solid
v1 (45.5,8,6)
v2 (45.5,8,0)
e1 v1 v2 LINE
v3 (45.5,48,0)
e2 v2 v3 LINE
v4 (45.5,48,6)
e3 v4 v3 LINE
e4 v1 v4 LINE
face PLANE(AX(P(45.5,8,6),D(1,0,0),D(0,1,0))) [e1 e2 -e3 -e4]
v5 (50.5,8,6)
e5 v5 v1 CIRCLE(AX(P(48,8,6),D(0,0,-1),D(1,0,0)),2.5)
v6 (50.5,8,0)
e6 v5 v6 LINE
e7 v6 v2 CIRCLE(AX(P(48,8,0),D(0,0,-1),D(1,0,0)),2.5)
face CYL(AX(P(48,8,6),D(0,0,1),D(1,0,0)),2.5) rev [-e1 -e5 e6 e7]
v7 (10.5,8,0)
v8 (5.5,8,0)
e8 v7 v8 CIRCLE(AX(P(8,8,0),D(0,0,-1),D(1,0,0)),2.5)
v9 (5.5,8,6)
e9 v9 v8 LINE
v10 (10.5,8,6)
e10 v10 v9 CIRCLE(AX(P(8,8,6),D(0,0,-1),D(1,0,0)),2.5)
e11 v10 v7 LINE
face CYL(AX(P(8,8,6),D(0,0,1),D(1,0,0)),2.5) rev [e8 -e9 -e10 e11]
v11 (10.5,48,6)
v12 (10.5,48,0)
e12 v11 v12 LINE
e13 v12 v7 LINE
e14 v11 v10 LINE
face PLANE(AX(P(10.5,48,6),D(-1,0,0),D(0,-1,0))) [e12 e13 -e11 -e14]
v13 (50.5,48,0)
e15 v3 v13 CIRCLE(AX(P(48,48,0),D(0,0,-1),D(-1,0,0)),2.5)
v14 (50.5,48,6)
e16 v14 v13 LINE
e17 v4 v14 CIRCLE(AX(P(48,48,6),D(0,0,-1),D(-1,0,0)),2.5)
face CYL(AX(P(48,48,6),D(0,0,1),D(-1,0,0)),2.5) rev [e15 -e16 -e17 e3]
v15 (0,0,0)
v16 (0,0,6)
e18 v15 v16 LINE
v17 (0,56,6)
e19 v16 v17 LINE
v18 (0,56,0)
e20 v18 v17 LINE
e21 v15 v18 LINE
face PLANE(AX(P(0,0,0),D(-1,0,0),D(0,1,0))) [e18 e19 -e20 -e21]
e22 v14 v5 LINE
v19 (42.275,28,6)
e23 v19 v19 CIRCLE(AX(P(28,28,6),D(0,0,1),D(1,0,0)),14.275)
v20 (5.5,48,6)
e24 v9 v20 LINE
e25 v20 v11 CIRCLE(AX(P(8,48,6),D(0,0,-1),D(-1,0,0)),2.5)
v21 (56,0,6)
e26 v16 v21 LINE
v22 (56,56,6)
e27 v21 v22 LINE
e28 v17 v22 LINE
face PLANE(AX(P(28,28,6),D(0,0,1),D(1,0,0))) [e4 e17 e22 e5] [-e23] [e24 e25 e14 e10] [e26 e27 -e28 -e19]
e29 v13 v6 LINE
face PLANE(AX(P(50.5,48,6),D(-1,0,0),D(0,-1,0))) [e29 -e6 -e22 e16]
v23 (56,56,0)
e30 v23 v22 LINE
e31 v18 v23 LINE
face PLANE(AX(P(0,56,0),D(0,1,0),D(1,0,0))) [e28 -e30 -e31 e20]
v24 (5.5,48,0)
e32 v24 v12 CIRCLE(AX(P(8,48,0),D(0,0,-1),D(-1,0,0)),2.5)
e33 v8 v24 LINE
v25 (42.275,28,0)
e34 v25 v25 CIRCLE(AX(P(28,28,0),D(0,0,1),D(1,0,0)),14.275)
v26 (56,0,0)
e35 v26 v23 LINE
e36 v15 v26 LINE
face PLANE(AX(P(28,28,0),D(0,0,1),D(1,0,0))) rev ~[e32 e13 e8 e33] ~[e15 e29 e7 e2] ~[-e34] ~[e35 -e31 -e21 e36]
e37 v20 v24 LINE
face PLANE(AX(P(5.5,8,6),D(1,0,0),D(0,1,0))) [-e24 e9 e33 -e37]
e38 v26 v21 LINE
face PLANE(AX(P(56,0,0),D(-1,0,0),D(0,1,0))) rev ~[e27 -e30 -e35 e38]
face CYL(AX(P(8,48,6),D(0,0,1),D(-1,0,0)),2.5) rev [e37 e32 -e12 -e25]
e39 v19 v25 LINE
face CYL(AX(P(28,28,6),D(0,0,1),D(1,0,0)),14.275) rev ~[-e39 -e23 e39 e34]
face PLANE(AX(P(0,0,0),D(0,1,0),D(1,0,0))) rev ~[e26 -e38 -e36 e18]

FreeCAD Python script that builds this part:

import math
import FreeCAD as App
import Part
import Sketcher

doc = App.newDocument("Part")
body = doc.addObject("PartDesign::Body", "Body")

sketch1 = body.newObject("Sketcher::SketchObject", "Sketch")
sketch1.AttachmentSupport = (doc.getObject("XY_Plane"), [""])
sketch1.MapMode = "FlatFace"
sketch1.addGeometry(Part.LineSegment(App.Vector(0, 56, 0), App.Vector(0, 0, 0)), False)
sketch1.addGeometry(Part.LineSegment(App.Vector(0, 0, 0), App.Vector(56, 0, 0)), False)
sketch1.addGeometry(Part.LineSegment(App.Vector(56, 0, 0), App.Vector(56, 56, 0)), False)
sketch1.addGeometry(Part.LineSegment(App.Vector(56, 56, 0), App.Vector(0, 56, 0)), False)
sketch1.addConstraint(Sketcher.Constraint("Coincident", 0, 2, 1, 1))
sketch1.addConstraint(Sketcher.Constraint("Coincident", 1, 2, 2, 1))
sketch1.addConstraint(Sketcher.Constraint("Coincident", 2, 2, 3, 1))
sketch1.addConstraint(Sketcher.Constraint("Coincident", 3, 2, 0, 1))
sketch1.addConstraint(Sketcher.Constraint("Vertical", 0))
sketch1.addConstraint(Sketcher.Constraint("Horizontal", 1))
sketch1.addConstraint(Sketcher.Constraint("Vertical", 2))
sketch1.addConstraint(Sketcher.Constraint("Horizontal", 3))
sketch1.addConstraint(Sketcher.Constraint("Coincident", 0, 2, -1, 1))
sketch1.addConstraint(Sketcher.Constraint("Equal", 3, 0))
sketch1.addConstraint(Sketcher.Constraint("DistanceX", 1, 1, 1, 2, 56.0))
pad1 = body.newObject("PartDesign::Pad", "Pad")
pad1.Profile = sketch1
pad1.Length = 6

sketch2 = body.newObject("Sketcher::SketchObject", "Sketch001")
sketch2.AttachmentSupport = (doc.getObject("XY_Plane"), [""])
sketch2.MapMode = "FlatFace"
sketch2.AttachmentOffset = App.Placement(App.Vector(0, 0, 6), App.Rotation())
sketch2.addGeometry(Part.Circle(App.Vector(28, 28, 0), App.Vector(0, 0, 1), 14.3), False)
sketch2.addGeometry(Part.LineSegment(App.Vector(10.5, 8, 0), App.Vector(10.5, 48, 0)), False)
sketch2.addGeometry(Part.ArcOfCircle(Part.Circle(App.Vector(8, 48, 0), App.Vector(0, 0, 1), 2.5), math.radians(0), math.radians(180)), False)
sketch2.addGeometry(Part.LineSegment(App.Vector(5.5, 48, 0), App.Vector(5.5, 8, 0)), False)
sketch2.addGeometry(Part.ArcOfCircle(Part.Circle(App.Vector(8, 8, 0), App.Vector(0, 0, 1), 2.5), math.radians(180), math.radians(360)), False)
sketch2.addGeometry(Part.LineSegment(App.Vector(50.5, 8, 0), App.Vector(50.5, 48, 0)), False)
sketch2.addGeometry(Part.ArcOfCircle(Part.Circle(App.Vector(48, 48, 0), App.Vector(0, 0, 1), 2.5), math.radians(0), math.radians(180)), False)
sketch2.addGeometry(Part.LineSegment(App.Vector(45.5, 48, 0), App.Vector(45.5, 8, 0)), False)
sketch2.addGeometry(Part.ArcOfCircle(Part.Circle(App.Vector(48, 8, 0), App.Vector(0, 0, 1), 2.5), math.radians(180), math.radians(360)), False)
sketch2.addConstraint(Sketcher.Constraint("Tangent", 1, 2, 2, 1))
sketch2.addConstraint(Sketcher.Constraint("Tangent", 2, 2, 3, 1))
sketch2.addConstraint(Sketcher.Constraint("Tangent", 3, 2, 4, 1))
sketch2.addConstraint(Sketcher.Constraint("Tangent", 4, 2, 1, 1))
sketch2.addConstraint(Sketcher.Constraint("Tangent", 5, 2, 6, 1))
sketch2.addConstraint(Sketcher.Constraint("Tangent", 6, 2, 7, 1))
sketch2.addConstraint(Sketcher.Constraint("Tangent", 7, 2, 8, 1))
sketch2.addConstraint(Sketcher.Constraint("Tangent", 8, 2, 5, 1))
sketch2.addConstraint(Sketcher.Constraint("Vertical", 1))
sketch2.addConstraint(Sketcher.Constraint("Vertical", 3))
sketch2.addConstraint(Sketcher.Constraint("Vertical", 5))
sketch2.addConstraint(Sketcher.Constraint("Vertical", 7))
sketch2.addConstraint(Sketcher.Constraint("Equal", 4, 6))
sketch2.addConstraint(Sketcher.Constraint("Horizontal", 2, 3, 6, 3))
sketch2.addConstraint(Sketcher.Constraint("Horizontal", 4, 3, 8, 3))
sketch2.addConstraint(Sketcher.Constraint("Radius", 2, 2.5))
sketch2.addConstraint(Sketcher.Constraint("Diameter", 0, 28.55))
sketch2.addConstraint(Sketcher.Constraint("DistanceY", 1, 1, 1, 2, 40.0))
sketch2.addConstraint(Sketcher.Constraint("DistanceX", -1, 1, 0, 3, 28.0))
sketch2.addConstraint(Sketcher.Constraint("DistanceY", -1, 1, 0, 3, 28.0))
sketch2.addConstraint(Sketcher.Constraint("DistanceX", -1, 1, 2, 3, 8.0))
sketch2.addConstraint(Sketcher.Constraint("DistanceY", -1, 1, 2, 3, 48.0))
sketch2.addConstraint(Sketcher.Constraint("DistanceX", -1, 1, 6, 3, 48.0))
pocket1 = body.newObject("PartDesign::Pocket", "Pocket")
pocket1.Profile = sketch2
pocket1.Length = 6

doc.recompute()
